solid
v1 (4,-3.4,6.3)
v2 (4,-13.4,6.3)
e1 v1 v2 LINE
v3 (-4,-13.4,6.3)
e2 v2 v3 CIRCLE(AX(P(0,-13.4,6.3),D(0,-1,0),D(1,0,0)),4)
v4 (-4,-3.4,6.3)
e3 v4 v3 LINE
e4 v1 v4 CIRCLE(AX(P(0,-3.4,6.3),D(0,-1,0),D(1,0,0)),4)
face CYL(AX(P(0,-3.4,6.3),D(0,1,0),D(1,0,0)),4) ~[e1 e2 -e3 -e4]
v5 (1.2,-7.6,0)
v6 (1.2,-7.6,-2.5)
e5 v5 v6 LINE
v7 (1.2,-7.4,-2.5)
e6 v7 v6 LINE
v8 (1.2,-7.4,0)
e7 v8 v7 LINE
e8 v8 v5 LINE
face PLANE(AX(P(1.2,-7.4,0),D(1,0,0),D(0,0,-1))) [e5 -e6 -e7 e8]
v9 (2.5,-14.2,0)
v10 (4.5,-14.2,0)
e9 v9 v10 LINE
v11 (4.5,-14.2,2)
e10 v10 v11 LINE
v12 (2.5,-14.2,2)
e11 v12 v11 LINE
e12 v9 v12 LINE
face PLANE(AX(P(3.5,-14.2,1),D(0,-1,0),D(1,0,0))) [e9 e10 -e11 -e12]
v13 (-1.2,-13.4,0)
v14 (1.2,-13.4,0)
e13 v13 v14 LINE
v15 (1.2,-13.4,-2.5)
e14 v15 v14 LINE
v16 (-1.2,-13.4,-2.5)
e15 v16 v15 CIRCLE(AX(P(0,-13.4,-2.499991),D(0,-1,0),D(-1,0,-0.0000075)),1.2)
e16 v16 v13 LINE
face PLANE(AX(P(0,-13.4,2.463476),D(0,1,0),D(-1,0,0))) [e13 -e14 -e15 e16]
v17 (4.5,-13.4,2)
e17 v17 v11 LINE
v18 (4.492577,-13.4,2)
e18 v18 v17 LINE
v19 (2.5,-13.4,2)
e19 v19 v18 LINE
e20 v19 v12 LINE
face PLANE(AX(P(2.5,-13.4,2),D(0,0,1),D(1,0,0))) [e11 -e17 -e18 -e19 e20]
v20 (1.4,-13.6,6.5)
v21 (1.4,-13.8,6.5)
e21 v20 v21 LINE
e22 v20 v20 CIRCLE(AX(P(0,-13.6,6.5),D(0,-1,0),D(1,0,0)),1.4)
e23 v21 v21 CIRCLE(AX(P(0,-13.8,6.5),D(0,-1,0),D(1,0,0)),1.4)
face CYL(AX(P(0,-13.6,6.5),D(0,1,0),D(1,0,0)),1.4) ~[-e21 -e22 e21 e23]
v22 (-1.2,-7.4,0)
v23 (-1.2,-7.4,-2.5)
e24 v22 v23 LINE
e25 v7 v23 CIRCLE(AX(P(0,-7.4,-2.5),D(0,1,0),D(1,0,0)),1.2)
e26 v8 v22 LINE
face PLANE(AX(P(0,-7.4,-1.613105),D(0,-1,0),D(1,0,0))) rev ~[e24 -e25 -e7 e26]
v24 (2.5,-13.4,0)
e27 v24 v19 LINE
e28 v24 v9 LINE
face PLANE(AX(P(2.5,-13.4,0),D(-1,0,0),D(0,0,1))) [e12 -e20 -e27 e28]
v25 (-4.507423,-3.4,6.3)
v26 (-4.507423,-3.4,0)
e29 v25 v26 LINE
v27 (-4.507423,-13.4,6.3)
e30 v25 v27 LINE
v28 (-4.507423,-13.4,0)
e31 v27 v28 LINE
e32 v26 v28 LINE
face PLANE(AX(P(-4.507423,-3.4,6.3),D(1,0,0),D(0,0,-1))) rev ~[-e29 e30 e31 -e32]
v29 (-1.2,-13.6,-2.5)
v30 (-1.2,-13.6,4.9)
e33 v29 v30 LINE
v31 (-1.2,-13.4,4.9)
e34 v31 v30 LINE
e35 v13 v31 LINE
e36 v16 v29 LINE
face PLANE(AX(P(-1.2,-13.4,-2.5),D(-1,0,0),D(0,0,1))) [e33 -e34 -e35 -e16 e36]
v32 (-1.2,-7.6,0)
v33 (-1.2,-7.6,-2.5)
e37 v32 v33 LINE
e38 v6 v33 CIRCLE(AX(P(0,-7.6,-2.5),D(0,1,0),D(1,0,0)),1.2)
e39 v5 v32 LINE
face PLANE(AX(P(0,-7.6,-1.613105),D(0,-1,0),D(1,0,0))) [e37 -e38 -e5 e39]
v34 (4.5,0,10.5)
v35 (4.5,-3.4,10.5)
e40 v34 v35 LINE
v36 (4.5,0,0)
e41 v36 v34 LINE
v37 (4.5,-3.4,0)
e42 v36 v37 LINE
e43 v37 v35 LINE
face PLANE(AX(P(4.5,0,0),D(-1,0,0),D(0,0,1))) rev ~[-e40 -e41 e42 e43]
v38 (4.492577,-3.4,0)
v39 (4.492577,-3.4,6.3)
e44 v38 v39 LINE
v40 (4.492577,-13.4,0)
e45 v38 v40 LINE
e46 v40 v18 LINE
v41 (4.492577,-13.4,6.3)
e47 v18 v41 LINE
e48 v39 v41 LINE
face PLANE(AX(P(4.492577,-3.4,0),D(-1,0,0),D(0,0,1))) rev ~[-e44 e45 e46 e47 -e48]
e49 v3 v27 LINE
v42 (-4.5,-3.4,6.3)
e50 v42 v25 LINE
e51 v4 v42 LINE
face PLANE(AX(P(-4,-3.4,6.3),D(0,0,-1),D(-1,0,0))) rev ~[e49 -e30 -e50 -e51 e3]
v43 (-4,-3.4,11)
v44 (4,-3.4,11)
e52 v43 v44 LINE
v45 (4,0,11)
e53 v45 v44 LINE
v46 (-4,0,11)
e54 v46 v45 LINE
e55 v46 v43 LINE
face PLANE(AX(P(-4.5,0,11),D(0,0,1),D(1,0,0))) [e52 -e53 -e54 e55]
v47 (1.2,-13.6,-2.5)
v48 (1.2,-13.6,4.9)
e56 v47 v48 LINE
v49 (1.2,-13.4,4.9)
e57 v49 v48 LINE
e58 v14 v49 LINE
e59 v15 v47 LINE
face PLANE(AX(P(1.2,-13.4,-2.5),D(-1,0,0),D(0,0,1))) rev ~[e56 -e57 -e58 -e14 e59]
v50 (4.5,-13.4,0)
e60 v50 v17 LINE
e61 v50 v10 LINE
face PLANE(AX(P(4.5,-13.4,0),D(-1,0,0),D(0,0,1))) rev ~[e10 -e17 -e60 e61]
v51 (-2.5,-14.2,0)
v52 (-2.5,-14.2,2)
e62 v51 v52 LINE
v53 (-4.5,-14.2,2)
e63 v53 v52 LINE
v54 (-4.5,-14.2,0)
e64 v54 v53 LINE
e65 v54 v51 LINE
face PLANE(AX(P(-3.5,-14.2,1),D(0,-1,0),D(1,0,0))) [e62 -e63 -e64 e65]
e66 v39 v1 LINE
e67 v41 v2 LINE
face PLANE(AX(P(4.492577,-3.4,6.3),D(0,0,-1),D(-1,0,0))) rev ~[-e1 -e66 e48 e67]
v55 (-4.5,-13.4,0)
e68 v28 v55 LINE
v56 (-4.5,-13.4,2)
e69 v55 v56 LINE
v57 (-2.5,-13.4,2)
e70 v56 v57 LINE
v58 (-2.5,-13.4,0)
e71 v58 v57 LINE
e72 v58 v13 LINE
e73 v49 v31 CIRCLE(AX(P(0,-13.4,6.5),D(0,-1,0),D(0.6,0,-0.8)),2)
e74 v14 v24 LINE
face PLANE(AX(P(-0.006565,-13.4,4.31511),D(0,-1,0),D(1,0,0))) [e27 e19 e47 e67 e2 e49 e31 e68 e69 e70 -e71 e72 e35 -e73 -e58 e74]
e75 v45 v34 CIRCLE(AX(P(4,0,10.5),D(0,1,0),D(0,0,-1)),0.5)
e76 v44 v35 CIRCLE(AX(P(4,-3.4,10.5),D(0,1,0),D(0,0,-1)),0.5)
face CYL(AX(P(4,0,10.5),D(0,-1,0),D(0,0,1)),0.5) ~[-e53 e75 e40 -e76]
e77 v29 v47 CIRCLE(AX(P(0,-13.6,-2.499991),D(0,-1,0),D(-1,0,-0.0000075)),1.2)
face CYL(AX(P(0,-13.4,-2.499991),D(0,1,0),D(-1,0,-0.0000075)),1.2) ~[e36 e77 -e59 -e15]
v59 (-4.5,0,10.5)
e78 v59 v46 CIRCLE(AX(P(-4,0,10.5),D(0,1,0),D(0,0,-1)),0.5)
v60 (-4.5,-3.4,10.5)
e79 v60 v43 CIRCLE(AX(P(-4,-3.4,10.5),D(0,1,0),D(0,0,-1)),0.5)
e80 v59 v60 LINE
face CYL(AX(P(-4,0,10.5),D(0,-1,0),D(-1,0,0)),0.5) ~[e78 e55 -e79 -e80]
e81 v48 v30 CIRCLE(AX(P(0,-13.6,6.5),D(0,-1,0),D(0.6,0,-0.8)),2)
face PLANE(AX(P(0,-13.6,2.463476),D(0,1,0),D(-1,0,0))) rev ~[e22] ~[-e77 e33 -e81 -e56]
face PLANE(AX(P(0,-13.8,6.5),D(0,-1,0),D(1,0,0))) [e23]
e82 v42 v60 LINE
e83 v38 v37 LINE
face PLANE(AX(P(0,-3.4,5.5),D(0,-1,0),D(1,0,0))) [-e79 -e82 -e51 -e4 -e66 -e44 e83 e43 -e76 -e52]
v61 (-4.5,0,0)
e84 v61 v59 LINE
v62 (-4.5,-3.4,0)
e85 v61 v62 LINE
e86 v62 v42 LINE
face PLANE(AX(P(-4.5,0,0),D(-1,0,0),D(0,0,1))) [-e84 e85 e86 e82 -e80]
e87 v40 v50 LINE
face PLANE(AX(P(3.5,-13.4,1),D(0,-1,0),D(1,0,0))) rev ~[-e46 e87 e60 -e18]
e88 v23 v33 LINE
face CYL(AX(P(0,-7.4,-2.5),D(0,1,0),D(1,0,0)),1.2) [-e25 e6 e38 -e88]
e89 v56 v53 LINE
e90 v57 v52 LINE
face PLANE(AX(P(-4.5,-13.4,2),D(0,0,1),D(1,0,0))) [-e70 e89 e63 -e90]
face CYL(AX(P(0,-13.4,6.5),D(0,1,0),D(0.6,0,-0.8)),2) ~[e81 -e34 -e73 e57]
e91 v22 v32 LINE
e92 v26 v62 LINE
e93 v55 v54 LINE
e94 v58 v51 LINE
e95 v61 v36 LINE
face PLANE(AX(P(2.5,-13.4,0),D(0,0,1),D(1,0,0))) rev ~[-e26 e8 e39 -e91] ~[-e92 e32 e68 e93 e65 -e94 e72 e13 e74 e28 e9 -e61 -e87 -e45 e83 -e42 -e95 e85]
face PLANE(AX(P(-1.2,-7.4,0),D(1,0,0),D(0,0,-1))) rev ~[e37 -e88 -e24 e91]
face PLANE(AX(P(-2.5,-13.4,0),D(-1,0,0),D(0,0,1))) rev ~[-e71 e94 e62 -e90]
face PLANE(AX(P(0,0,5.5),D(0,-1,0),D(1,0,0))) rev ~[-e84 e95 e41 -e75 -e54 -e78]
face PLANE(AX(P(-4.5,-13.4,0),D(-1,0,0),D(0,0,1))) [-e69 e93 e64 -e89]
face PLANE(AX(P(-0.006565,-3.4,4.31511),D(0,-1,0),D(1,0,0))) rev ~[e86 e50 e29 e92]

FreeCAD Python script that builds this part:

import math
import FreeCAD as App
import Part
import Sketcher


def edges_at(feature, points):
    """Names of the edges that pass closest to the given points."""
    edges = feature.Shape.Edges
    near = lambda p: min(range(len(edges)), key=lambda i: edges[i].distToShape(Part.Vertex(*p))[0])
    return sorted({f"Edge{near(p) + 1}" for p in points})


def add_polygon(sketch, points):
    """Adds a closed chain of lines whose ends are joined by coincident constraints."""
    first, n = sketch.GeometryCount, len(points)
    for a, b in zip(points, points[1:] + points[:1]):
        sketch.addGeometry(Part.LineSegment(App.Vector(*a, 0), App.Vector(*b, 0)), False)
    for i in range(n):
        sketch.addConstraint(Sketcher.Constraint("Coincident", first + i, 2, first + (i + 1) % n, 1))

doc = App.newDocument("Part")
body = doc.addObject("PartDesign::Body", "Body")

# Sketch on XZ plane
sketch1 = body.newObject("Sketcher::SketchObject", "Sketch")
sketch1.AttachmentSupport = (doc.getObject("XZ_Plane"), [""])
sketch1.MapMode = "FlatFace"
add_polygon(sketch1, [(-4, 11), (-4, 0), (4, 0), (4, 11)])  # lines 0-3
sketch1.addConstraint([
    Sketcher.Constraint("Vertical", 0),
    Sketcher.Constraint("Horizontal", 1),
    Sketcher.Constraint("Vertical", 2),
    Sketcher.Constraint("Horizontal", 3),
    Sketcher.Constraint("Symmetric", 0, 2, 1, 2, -1, 1),
    Sketcher.Constraint("DistanceX", 1, 1, 1, 2, 9.0),
    Sketcher.Constraint("DistanceY", 0, 2, 0, 1, 11.0),
])
pad1 = body.newObject("PartDesign::Pad", "Pad")
pad1.Profile = sketch1
pad1.Length = 3.4

# Sketch on XZ plane
sketch2 = body.newObject("Sketcher::SketchObject", "Sketch001")
sketch2.AttachmentSupport = (doc.getObject("XZ_Plane"), [""])
sketch2.MapMode = "FlatFace"
sketch2.AttachmentOffset = App.Placement(App.Vector(0, 0, 3.4), App.Rotation())
sketch2.addGeometry([
    Part.ArcOfCircle(Part.Circle(App.Vector(0, 6.3, 0), App.Vector(0, 0, 1), 4), math.radians(0), math.radians(180)),  # 0
    Part.LineSegment(App.Vector(-4, 6.3, 0), App.Vector(-4.51, 6.3, 0)),  # 1
    Part.LineSegment(App.Vector(-4.51, 6.3, 0), App.Vector(-4.51, 0, 0)),  # 2
    Part.LineSegment(App.Vector(-4.51, 0, 0), App.Vector(4.49, 0, 0)),  # 3
    Part.LineSegment(App.Vector(4.49, 0, 0), App.Vector(4.49, 6.3, 0)),  # 4
    Part.LineSegment(App.Vector(4.49, 6.3, 0), App.Vector(4, 6.3, 0)),  # 5
], False)
sketch2.addConstraint([
    Sketcher.Constraint("Coincident", 0, 2, 1, 1),
    Sketcher.Constraint("Coincident", 1, 2, 2, 1),
    Sketcher.Constraint("Coincident", 2, 2, 3, 1),
    Sketcher.Constraint("Coincident", 3, 2, 4, 1),
    Sketcher.Constraint("Coincident", 4, 2, 5, 1),
    Sketcher.Constraint("Coincident", 5, 2, 0, 1),
    Sketcher.Constraint("Horizontal", 1),
    Sketcher.Constraint("Vertical", 2),
    Sketcher.Constraint("Horizontal", 3),
    Sketcher.Constraint("Vertical", 4),
    Sketcher.Constraint("Horizontal", 5),
    Sketcher.Constraint("Symmetric", 0, 2, 5, 2, -2),
    Sketcher.Constraint("PointOnObject", 2, 2, -1),
    Sketcher.Constraint("Radius", 0, 4.0),
    Sketcher.Constraint("DistanceX", 3, 1, 3, 2, 9.0),
    Sketcher.Constraint("DistanceY", 2, 2, 2, 1, 6.3),
    Sketcher.Constraint("DistanceY", -1, 1, 0, 3, 6.3),
    Sketcher.Constraint("DistanceX", 1, 2, 1, 1, 0.507423),
])
pad2 = body.newObject("PartDesign::Pad", "Pad001")
pad2.Profile = sketch2
pad2.Length = 10
doc.recompute()

fillet = body.newObject("PartDesign::Fillet", "Fillet")
fillet.Base = (pad2, edges_at(pad2, [(4.5, -1.7, 11), (-4.5, -1.7, 11)]))
fillet.Radius = 0.5

# Sketch on XZ plane
sketch3 = body.newObject("Sketcher::SketchObject", "Sketch002")
sketch3.AttachmentSupport = (doc.getObject("XZ_Plane"), [""])
sketch3.MapMode = "FlatFace"
sketch3.AttachmentOffset = App.Placement(App.Vector(0, 0, 13.4), App.Rotation())
add_polygon(sketch3, [(2.5, 2), (2.5, 0), (4.5, 0), (4.5, 2)])  # lines 0-3
add_polygon(sketch3, [(-4.5, 2), (-4.5, 0), (-2.5, 0), (-2.5, 2)])  # lines 4-7
sketch3.addConstraint([
    Sketcher.Constraint("Vertical", 0),
    Sketcher.Constraint("Horizontal", 1),
    Sketcher.Constraint("Vertical", 2),
    Sketcher.Constraint("Horizontal", 3),
    Sketcher.Constraint("Vertical", 4),
    Sketcher.Constraint("Horizontal", 5),
    Sketcher.Constraint("Vertical", 6),
    Sketcher.Constraint("Horizontal", 7),
    Sketcher.Constraint("Symmetric", 1, 2, 4, 2, -1, 1),
    Sketcher.Constraint("Symmetric", 0, 2, 5, 2, -2),
    Sketcher.Constraint("Horizontal", 3, 2, 6, 2),
    Sketcher.Constraint("Equal", 7, 0),
    Sketcher.Constraint("DistanceX", 1, 1, 1, 2, 2.0),
    Sketcher.Constraint("DistanceX", 4, 2, 0, 2, 7.0),
])
pad3 = body.newObject("PartDesign::Pad", "Pad002")
pad3.Profile = sketch3
pad3.Length = 0.8

# Sketch on XZ plane
sketch4 = body.newObject("Sketcher::SketchObject", "Sketch003")
sketch4.AttachmentSupport = (doc.getObject("XZ_Plane"), [""])
sketch4.MapMode = "FlatFace"
sketch4.AttachmentOffset = App.Placement(App.Vector(0, 0, 13.4), App.Rotation())
sketch4.addGeometry([
    Part.LineSegment(App.Vector(-1.2, 4.9, 0), App.Vector(-1.2, -2.5, 0)),
    Part.ArcOfCircle(Part.Circle(App.Vector(0, -2.5, 0), App.Vector(0, 0, 1), 1.2), math.radians(-180), math.radians(0)),
    Part.LineSegment(App.Vector(1.2, -2.5, 0), App.Vector(1.2, 4.9, 0)),
    Part.ArcOfCircle(Part.Circle(App.Vector(0, 6.5, 0), App.Vector(0, 0, 1), 2), math.radians(-53), math.radians(233)),
], False)
sketch4.addConstraint([
    Sketcher.Constraint("Coincident", 0, 2, 1, 1),
    Sketcher.Constraint("Coincident", 1, 2, 2, 1),
    Sketcher.Constraint("Coincident", 2, 2, 3, 1),
    Sketcher.Constraint("Coincident", 3, 2, 0, 1),
    Sketcher.Constraint("Vertical", 0),
    Sketcher.Constraint("Vertical", 2),
    Sketcher.Constraint("Symmetric", 0, 2, 1, 2, -2),
    Sketcher.Constraint("PointOnObject", 3, 3, -2),
    Sketcher.Constraint("Radius", 3, 2.0),
    Sketcher.Constraint("Radius", 1, 1.2),
    Sketcher.Constraint("DistanceY", 0, 2, 0, 1, 7.4),
    Sketcher.Constraint("DistanceY", -1, 1, 3, 3, 6.5),
    Sketcher.Constraint("DistanceY", 1, 3, -1, 1, 2.499991),
])
pad4 = body.newObject("PartDesign::Pad", "Pad003")
pad4.Profile = sketch4
pad4.Length = 0.2

# Sketch on XZ plane
sketch5 = body.newObject("Sketcher::SketchObject", "Sketch004")
sketch5.AttachmentSupport = (doc.getObject("XZ_Plane"), [""])
sketch5.MapMode = "FlatFace"
sketch5.AttachmentOffset = App.Placement(App.Vector(0, 0, 13.6), App.Rotation())
sketch5.addGeometry(Part.Circle(App.Vector(0, 6.5, 0), App.Vector(0, 0, 1), 1.4), False)
sketch5.addConstraint([
    Sketcher.Constraint("PointOnObject", 0, 3, -2),
    Sketcher.Constraint("Diameter", 0, 2.8),
    Sketcher.Constraint("DistanceY", -1, 1, 0, 3, 6.5),
])
pad5 = body.newObject("PartDesign::Pad", "Pad004")
pad5.Profile = sketch5
pad5.Length = 0.2

# Sketch on XZ plane
sketch6 = body.newObject("Sketcher::SketchObject", "Sketch005")
sketch6.AttachmentSupport = (doc.getObject("XZ_Plane"), [""])
sketch6.MapMode = "FlatFace"
sketch6.AttachmentOffset = App.Placement(App.Vector(0, 0, 7.4), App.Rotation())
sketch6.addGeometry([
    Part.LineSegment(App.Vector(-1.2, 0, 0), App.Vector(1.2, 0, 0)),
    Part.LineSegment(App.Vector(1.2, 0, 0), App.Vector(1.2, -2.5, 0)),
    Part.ArcOfCircle(Part.Circle(App.Vector(0, -2.5, 0), App.Vector(0, 0, 1), 1.2), math.radians(180), math.radians(360)),
    Part.LineSegment(App.Vector(-1.2, -2.5, 0), App.Vector(-1.2, 0, 0)),
], False)
sketch6.addConstraint([
    Sketcher.Constraint("Coincident", 0, 2, 1, 1),
    Sketcher.Constraint("Tangent", 1, 2, 2, 2),
    Sketcher.Constraint("Tangent", 2, 1, 3, 1),
    Sketcher.Constraint("Coincident", 3, 2, 0, 1),
    Sketcher.Constraint("Horizontal", 0),
    Sketcher.Constraint("Vertical", 1),
    Sketcher.Constraint("Vertical", 3),
    Sketcher.Constraint("Symmetric", 0, 2, 3, 2, -1, 1),
    Sketcher.Constraint("Radius", 2, 1.2),
    Sketcher.Constraint("DistanceY", 1, 2, 1, 1, 2.5),
])
pad6 = body.newObject("PartDesign::Pad", "Pad005")
pad6.Profile = sketch6
pad6.Length = 0.2

doc.recompute()
